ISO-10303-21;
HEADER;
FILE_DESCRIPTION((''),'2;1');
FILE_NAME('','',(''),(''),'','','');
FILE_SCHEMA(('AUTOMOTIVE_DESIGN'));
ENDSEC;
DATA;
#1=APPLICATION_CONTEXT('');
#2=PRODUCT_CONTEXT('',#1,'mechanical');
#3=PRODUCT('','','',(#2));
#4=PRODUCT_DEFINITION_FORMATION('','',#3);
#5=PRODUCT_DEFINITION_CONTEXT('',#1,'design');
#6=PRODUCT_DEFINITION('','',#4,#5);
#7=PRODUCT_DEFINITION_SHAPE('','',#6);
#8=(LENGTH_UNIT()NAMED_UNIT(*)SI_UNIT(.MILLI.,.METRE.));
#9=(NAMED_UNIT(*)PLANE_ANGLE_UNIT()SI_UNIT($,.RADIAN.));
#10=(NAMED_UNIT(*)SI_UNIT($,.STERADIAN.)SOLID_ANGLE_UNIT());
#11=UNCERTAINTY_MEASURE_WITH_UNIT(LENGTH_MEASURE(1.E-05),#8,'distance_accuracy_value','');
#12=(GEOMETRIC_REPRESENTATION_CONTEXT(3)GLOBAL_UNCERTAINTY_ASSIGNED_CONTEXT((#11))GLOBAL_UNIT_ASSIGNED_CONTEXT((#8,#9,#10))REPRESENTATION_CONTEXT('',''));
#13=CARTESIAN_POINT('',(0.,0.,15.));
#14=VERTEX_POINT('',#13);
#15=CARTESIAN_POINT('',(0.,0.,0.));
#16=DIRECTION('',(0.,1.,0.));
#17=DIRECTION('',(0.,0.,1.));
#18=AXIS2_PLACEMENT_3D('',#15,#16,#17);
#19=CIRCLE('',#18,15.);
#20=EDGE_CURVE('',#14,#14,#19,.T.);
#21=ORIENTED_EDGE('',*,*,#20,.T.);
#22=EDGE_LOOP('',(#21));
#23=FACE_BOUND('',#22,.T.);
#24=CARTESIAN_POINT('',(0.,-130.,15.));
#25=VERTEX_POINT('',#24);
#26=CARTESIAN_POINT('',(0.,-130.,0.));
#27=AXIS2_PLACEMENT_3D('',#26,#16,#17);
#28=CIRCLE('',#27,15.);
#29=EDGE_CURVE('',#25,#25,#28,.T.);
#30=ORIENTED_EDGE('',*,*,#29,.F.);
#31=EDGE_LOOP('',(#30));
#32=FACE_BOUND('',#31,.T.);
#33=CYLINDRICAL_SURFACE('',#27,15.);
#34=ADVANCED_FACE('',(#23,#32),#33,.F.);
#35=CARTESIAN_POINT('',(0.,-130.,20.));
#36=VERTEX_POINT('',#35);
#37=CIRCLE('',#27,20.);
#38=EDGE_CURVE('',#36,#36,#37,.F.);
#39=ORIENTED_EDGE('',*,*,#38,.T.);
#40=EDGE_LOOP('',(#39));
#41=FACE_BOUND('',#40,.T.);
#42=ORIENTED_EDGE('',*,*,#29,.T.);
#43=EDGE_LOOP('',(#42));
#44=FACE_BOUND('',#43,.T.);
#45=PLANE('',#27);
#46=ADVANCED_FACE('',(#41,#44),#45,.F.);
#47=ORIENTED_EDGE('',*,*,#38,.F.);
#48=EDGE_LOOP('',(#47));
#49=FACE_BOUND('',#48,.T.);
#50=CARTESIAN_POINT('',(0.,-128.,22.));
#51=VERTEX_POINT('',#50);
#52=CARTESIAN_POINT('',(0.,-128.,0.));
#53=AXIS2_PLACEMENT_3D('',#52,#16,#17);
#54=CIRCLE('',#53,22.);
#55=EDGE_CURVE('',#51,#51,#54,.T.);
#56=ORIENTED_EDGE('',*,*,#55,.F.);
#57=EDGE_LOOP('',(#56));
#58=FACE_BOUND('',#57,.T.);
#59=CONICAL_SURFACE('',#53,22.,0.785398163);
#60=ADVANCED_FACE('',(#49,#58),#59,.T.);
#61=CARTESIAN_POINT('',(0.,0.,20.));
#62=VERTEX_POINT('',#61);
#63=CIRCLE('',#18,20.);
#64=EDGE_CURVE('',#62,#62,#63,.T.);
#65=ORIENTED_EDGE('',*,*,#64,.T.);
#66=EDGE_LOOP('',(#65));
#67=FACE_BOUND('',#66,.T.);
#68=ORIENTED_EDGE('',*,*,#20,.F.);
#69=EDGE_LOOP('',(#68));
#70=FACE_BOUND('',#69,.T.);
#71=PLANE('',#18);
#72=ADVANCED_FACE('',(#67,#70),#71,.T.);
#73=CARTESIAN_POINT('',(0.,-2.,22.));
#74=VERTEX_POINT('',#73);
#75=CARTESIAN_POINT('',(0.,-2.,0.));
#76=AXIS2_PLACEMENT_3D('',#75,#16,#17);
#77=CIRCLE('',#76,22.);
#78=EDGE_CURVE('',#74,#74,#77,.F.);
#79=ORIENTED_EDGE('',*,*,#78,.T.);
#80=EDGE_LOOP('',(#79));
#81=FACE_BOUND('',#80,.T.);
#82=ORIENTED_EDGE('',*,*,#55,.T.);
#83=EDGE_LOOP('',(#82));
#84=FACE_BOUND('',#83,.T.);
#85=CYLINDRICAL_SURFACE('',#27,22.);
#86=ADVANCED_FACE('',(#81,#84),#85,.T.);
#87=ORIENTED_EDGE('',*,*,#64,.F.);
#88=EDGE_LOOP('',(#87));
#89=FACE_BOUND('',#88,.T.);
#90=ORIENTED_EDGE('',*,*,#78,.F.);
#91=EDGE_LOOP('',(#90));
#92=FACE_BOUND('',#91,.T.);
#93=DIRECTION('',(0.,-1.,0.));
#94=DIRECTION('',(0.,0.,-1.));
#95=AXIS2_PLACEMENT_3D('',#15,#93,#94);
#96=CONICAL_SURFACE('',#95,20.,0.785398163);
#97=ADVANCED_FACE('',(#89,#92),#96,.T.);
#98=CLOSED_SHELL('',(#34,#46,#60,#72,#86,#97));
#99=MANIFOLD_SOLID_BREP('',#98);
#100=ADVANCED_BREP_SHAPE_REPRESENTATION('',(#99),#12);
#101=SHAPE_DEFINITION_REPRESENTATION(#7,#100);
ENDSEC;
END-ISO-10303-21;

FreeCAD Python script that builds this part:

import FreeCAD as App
import Part
import Sketcher
from FreeCAD import Vector
Q = App.Units.Quantity


def edges_at(feature, points):
    """Names of the edges that pass closest to the given points."""
    edges = feature.Shape.Edges
    near = lambda p: min(range(len(edges)), key=lambda i: edges[i].distToShape(Part.Vertex(*p))[0])
    return sorted({f"Edge{near(p) + 1}" for p in points})

doc = App.newDocument("Part")
body = doc.addObject("PartDesign::Body", "Body")

# Sketch on XZ plane
sketch1 = body.newObject("Sketcher::SketchObject", "Sketch")
sketch1.AttachmentSupport = (doc.getObject("XZ_Plane"), [""])
sketch1.MapMode = "FlatFace"
sketch1.addGeometry([
    Part.Circle(Vector(0, 0, 0), Vector(0, 0, 1), 22),
    Part.Circle(Vector(0, 0, 0), Vector(0, 0, 1), 15),
], False)
sketch1.addConstraint([
    Sketcher.Constraint("Coincident", 0, 3, -1, 1),
    Sketcher.Constraint("Coincident", 1, 3, -1, 1),
    Sketcher.Constraint("Diameter", 0, Q("44 mm")),
    Sketcher.Constraint("Diameter", 1, Q("30 mm")),
])
pad1 = body.newObject("PartDesign::Pad", "Pad")
pad1.Profile = sketch1
pad1.Length = 130
doc.recompute()

chamfer = body.newObject("PartDesign::Chamfer", "Chamfer")
chamfer.Base = (pad1, edges_at(pad1, [(0, 0, -22), (0, -130, -22)]))
chamfer.Size = 2

doc.recompute()
